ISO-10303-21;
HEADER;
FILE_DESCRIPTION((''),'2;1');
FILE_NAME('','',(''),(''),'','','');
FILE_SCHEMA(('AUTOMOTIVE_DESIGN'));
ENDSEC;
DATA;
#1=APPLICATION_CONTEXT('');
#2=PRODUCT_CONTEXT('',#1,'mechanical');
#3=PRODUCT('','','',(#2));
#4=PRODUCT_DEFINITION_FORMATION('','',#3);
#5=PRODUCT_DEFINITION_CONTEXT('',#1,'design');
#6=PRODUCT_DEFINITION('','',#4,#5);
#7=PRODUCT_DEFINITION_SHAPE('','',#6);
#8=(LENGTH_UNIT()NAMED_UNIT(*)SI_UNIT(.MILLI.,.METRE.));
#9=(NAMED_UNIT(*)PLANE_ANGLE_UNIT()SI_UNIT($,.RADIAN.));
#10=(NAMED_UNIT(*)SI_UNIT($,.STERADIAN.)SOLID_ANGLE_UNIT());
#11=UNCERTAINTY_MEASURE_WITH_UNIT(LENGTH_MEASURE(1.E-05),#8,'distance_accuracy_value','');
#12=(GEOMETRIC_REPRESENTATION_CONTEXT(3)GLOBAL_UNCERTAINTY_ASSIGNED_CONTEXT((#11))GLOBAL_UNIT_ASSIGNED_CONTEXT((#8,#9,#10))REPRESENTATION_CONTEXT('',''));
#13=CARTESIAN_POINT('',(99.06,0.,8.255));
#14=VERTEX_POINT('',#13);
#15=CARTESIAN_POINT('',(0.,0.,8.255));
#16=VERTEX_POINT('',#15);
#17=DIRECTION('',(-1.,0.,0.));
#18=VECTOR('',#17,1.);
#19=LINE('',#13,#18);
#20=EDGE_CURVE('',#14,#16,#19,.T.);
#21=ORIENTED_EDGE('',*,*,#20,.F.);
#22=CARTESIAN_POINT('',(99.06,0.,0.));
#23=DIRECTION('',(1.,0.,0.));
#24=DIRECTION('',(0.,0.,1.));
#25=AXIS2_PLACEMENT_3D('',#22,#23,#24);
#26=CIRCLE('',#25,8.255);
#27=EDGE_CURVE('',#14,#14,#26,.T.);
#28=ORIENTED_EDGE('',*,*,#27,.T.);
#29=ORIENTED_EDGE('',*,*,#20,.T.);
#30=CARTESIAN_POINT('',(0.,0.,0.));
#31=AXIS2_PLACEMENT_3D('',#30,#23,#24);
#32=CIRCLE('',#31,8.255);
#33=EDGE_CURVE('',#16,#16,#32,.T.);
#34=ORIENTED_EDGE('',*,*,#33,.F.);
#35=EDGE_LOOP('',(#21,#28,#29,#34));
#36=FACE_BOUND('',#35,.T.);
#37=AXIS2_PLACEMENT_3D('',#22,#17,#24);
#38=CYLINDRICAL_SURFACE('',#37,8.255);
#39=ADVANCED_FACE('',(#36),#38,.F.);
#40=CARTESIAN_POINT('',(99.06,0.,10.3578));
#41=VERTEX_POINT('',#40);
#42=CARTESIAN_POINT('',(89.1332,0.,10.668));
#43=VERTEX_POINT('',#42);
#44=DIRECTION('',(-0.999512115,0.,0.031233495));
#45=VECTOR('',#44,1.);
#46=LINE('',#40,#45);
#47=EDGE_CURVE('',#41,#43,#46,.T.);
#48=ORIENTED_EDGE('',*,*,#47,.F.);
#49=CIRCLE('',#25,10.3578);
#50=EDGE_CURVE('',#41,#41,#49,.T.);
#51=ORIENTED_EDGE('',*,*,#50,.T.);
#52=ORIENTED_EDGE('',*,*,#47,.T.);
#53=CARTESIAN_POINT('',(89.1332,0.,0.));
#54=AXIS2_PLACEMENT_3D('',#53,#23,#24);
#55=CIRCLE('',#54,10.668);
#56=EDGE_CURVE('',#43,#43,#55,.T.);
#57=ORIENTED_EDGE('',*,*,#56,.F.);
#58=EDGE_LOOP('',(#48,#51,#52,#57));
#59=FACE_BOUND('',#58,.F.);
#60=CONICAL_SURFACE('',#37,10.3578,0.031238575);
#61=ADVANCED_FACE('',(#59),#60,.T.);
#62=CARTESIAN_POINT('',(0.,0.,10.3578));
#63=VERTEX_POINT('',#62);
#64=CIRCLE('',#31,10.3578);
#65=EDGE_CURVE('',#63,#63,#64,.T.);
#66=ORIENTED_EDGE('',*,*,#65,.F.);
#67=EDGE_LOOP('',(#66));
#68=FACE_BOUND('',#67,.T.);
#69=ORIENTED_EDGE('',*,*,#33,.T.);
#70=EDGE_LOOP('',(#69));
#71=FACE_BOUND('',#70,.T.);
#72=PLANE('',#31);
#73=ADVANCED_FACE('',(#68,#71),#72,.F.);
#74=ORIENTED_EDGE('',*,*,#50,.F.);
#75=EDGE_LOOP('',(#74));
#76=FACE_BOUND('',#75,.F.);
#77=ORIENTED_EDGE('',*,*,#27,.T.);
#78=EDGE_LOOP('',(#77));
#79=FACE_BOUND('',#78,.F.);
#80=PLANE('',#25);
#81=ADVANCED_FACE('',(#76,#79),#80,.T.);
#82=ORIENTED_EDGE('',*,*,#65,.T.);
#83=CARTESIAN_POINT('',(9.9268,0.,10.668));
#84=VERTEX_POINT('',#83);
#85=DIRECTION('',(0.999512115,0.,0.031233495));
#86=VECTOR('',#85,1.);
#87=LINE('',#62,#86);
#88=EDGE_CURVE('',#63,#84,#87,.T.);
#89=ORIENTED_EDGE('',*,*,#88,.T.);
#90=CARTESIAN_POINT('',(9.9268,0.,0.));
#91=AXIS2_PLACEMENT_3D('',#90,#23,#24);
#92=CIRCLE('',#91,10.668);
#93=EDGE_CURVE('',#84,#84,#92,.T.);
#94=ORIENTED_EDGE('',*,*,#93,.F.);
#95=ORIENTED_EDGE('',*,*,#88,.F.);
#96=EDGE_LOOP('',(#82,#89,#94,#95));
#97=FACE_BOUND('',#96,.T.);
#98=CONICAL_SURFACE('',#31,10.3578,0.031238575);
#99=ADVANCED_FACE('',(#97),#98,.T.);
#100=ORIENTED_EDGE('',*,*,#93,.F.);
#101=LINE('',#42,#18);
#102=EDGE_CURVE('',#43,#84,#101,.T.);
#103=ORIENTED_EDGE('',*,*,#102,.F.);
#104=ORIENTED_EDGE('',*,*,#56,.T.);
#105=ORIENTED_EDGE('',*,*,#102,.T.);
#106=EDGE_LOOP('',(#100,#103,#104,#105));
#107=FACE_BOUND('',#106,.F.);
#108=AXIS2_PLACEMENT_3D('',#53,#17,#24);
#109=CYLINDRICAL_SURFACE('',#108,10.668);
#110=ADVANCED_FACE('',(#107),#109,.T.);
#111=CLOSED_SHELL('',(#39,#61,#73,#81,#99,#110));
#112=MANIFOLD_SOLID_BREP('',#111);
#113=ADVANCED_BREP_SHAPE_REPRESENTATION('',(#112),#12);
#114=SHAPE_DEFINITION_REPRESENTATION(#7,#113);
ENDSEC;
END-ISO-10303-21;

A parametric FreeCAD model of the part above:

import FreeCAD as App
import Part
import Sketcher
from FreeCAD import Vector
Q = App.Units.Quantity

doc = App.newDocument("Part")
body = doc.addObject("PartDesign::Body", "Body")

sketch1 = body.newObject("Sketcher::SketchObject", "Sketch")
sketch1.AttachmentSupport = (doc.getObject("XZ_Plane"), [""])
sketch1.MapMode = "FlatFace"
sketch1.addGeometry([
    Part.LineSegment(Vector(99.1, 10.4, 0), Vector(99.1, 8.3, 0)),
    Part.LineSegment(Vector(99.1, 8.3, 0), Vector(0, 8.3, 0)),
    Part.LineSegment(Vector(0, 8.3, 0), Vector(0, 10.4, 0)),
    Part.LineSegment(Vector(0, 10.4, 0), Vector(9.9, 10.7, 0)),
    Part.LineSegment(Vector(9.9, 10.7, 0), Vector(89.1, 10.7, 0)),
    Part.LineSegment(Vector(89.1, 10.7, 0), Vector(99.1, 10.4, 0)),
], False)
sketch1.addConstraint([
    Sketcher.Constraint("Coincident", 0, 2, 1, 1),
    Sketcher.Constraint("Coincident", 1, 2, 2, 1),
    Sketcher.Constraint("Coincident", 2, 2, 3, 1),
    Sketcher.Constraint("Coincident", 3, 2, 4, 1),
    Sketcher.Constraint("Coincident", 4, 2, 5, 1),
    Sketcher.Constraint("Coincident", 5, 2, 0, 1),
    Sketcher.Constraint("Vertical", 0),
    Sketcher.Constraint("Horizontal", 1),
    Sketcher.Constraint("Vertical", 2),
    Sketcher.Constraint("Horizontal", 4),
    Sketcher.Constraint("PointOnObject", 1, 2, -2),
    Sketcher.Constraint("Horizontal", 2, 2, 5, 2),
    Sketcher.Constraint("Equal", 3, 5),
    Sketcher.Constraint("DistanceX", 1, 2, 1, 1, Q("3.9 in")),
    Sketcher.Constraint("Angle", 3, Q("1.7898 deg")),
    Sketcher.Constraint("DistanceY", -1, 1, 3, 2, Q("0.42 in")),
    Sketcher.Constraint("Distance", 3, Q("0.391 in")),
    Sketcher.Constraint("DistanceY", -1, 1, 0, 2, Q("0.325 in")),
])
revolution = body.newObject("PartDesign::Revolution", "Revolution")
revolution.Profile = sketch1
revolution.ReferenceAxis = (sketch1, ["H_Axis"])
revolution.Angle = 360

doc.recompute()
